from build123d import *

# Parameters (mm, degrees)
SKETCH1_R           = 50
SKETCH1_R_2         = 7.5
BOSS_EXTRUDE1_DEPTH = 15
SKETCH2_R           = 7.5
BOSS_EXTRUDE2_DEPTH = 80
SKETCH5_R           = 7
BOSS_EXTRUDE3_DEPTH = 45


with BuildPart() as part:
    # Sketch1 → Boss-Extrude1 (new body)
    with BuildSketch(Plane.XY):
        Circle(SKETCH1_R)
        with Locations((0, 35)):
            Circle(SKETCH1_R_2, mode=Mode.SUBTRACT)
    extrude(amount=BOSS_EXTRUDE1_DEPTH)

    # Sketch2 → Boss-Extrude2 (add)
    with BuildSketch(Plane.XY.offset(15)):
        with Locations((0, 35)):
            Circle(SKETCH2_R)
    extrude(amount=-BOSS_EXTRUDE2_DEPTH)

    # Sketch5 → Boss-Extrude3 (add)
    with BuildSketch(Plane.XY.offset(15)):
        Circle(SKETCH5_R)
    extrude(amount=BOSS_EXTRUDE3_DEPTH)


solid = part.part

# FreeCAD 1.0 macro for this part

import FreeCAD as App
import Part
import Sketcher

V = App.Vector
Q = App.Units.Quantity

doc = App.newDocument("Part")
body = doc.addObject("PartDesign::Body", "Body")

sketch1 = body.newObject("Sketcher::SketchObject", "Sketch")
sketch1.AttachmentSupport = (doc.getObject("XY_Plane"), [""])
sketch1.MapMode = "FlatFace"
sketch1.addGeometry([
    Part.Circle(V(0, 0, 0), V(0, 0, 1), 50),
    Part.Circle(V(0, 35, 0), V(0, 0, 1), 7.5),
], False)
sketch1.addConstraint([
    Sketcher.Constraint("Coincident", 0, 3, -1, 1),
    Sketcher.Constraint("PointOnObject", 1, 3, -2),
    Sketcher.Constraint("Diameter", 0, Q("100 mm")),
    Sketcher.Constraint("Diameter", 1, Q("15 mm")),
    Sketcher.Constraint("DistanceY", -1, 1, 1, 3, Q("35 mm")),
])
pad1 = body.newObject("PartDesign::Pad", "Pad")
pad1.Profile = sketch1
pad1.Length = 15

sketch2 = body.newObject("Sketcher::SketchObject", "Sketch001")
sketch2.AttachmentSupport = (doc.getObject("XY_Plane"), [""])
sketch2.MapMode = "FlatFace"
sketch2.AttachmentOffset = App.Placement(V(0, 0, 15), App.Rotation())
sketch2.addGeometry(Part.Circle(V(0, 35, 0), V(0, 0, 1), 7.5), False)
sketch2.addConstraint([
    Sketcher.Constraint("PointOnObject", 0, 3, -2),
    Sketcher.Constraint("Diameter", 0, Q("15 mm")),
    Sketcher.Constraint("DistanceY", -1, 1, 0, 3, Q("35 mm")),
])
pad2 = body.newObject("PartDesign::Pad", "Pad001")
pad2.Profile = sketch2
pad2.Length = 80
pad2.Reversed = True

sketch3 = body.newObject("Sketcher::SketchObject", "Sketch002")
sketch3.AttachmentSupport = (doc.getObject("XY_Plane"), [""])
sketch3.MapMode = "FlatFace"
sketch3.AttachmentOffset = App.Placement(V(0, 0, 15), App.Rotation())
sketch3.addGeometry(Part.Circle(V(0, 0, 0), V(0, 0, 1), 7), False)
sketch3.addConstraint([
    Sketcher.Constraint("Coincident", 0, 3, -1, 1),
    Sketcher.Constraint("Diameter", 0, Q("14 mm")),
])
pad3 = body.newObject("PartDesign::Pad", "Pad002")
pad3.Profile = sketch3
pad3.Length = 45

doc.recompute()
